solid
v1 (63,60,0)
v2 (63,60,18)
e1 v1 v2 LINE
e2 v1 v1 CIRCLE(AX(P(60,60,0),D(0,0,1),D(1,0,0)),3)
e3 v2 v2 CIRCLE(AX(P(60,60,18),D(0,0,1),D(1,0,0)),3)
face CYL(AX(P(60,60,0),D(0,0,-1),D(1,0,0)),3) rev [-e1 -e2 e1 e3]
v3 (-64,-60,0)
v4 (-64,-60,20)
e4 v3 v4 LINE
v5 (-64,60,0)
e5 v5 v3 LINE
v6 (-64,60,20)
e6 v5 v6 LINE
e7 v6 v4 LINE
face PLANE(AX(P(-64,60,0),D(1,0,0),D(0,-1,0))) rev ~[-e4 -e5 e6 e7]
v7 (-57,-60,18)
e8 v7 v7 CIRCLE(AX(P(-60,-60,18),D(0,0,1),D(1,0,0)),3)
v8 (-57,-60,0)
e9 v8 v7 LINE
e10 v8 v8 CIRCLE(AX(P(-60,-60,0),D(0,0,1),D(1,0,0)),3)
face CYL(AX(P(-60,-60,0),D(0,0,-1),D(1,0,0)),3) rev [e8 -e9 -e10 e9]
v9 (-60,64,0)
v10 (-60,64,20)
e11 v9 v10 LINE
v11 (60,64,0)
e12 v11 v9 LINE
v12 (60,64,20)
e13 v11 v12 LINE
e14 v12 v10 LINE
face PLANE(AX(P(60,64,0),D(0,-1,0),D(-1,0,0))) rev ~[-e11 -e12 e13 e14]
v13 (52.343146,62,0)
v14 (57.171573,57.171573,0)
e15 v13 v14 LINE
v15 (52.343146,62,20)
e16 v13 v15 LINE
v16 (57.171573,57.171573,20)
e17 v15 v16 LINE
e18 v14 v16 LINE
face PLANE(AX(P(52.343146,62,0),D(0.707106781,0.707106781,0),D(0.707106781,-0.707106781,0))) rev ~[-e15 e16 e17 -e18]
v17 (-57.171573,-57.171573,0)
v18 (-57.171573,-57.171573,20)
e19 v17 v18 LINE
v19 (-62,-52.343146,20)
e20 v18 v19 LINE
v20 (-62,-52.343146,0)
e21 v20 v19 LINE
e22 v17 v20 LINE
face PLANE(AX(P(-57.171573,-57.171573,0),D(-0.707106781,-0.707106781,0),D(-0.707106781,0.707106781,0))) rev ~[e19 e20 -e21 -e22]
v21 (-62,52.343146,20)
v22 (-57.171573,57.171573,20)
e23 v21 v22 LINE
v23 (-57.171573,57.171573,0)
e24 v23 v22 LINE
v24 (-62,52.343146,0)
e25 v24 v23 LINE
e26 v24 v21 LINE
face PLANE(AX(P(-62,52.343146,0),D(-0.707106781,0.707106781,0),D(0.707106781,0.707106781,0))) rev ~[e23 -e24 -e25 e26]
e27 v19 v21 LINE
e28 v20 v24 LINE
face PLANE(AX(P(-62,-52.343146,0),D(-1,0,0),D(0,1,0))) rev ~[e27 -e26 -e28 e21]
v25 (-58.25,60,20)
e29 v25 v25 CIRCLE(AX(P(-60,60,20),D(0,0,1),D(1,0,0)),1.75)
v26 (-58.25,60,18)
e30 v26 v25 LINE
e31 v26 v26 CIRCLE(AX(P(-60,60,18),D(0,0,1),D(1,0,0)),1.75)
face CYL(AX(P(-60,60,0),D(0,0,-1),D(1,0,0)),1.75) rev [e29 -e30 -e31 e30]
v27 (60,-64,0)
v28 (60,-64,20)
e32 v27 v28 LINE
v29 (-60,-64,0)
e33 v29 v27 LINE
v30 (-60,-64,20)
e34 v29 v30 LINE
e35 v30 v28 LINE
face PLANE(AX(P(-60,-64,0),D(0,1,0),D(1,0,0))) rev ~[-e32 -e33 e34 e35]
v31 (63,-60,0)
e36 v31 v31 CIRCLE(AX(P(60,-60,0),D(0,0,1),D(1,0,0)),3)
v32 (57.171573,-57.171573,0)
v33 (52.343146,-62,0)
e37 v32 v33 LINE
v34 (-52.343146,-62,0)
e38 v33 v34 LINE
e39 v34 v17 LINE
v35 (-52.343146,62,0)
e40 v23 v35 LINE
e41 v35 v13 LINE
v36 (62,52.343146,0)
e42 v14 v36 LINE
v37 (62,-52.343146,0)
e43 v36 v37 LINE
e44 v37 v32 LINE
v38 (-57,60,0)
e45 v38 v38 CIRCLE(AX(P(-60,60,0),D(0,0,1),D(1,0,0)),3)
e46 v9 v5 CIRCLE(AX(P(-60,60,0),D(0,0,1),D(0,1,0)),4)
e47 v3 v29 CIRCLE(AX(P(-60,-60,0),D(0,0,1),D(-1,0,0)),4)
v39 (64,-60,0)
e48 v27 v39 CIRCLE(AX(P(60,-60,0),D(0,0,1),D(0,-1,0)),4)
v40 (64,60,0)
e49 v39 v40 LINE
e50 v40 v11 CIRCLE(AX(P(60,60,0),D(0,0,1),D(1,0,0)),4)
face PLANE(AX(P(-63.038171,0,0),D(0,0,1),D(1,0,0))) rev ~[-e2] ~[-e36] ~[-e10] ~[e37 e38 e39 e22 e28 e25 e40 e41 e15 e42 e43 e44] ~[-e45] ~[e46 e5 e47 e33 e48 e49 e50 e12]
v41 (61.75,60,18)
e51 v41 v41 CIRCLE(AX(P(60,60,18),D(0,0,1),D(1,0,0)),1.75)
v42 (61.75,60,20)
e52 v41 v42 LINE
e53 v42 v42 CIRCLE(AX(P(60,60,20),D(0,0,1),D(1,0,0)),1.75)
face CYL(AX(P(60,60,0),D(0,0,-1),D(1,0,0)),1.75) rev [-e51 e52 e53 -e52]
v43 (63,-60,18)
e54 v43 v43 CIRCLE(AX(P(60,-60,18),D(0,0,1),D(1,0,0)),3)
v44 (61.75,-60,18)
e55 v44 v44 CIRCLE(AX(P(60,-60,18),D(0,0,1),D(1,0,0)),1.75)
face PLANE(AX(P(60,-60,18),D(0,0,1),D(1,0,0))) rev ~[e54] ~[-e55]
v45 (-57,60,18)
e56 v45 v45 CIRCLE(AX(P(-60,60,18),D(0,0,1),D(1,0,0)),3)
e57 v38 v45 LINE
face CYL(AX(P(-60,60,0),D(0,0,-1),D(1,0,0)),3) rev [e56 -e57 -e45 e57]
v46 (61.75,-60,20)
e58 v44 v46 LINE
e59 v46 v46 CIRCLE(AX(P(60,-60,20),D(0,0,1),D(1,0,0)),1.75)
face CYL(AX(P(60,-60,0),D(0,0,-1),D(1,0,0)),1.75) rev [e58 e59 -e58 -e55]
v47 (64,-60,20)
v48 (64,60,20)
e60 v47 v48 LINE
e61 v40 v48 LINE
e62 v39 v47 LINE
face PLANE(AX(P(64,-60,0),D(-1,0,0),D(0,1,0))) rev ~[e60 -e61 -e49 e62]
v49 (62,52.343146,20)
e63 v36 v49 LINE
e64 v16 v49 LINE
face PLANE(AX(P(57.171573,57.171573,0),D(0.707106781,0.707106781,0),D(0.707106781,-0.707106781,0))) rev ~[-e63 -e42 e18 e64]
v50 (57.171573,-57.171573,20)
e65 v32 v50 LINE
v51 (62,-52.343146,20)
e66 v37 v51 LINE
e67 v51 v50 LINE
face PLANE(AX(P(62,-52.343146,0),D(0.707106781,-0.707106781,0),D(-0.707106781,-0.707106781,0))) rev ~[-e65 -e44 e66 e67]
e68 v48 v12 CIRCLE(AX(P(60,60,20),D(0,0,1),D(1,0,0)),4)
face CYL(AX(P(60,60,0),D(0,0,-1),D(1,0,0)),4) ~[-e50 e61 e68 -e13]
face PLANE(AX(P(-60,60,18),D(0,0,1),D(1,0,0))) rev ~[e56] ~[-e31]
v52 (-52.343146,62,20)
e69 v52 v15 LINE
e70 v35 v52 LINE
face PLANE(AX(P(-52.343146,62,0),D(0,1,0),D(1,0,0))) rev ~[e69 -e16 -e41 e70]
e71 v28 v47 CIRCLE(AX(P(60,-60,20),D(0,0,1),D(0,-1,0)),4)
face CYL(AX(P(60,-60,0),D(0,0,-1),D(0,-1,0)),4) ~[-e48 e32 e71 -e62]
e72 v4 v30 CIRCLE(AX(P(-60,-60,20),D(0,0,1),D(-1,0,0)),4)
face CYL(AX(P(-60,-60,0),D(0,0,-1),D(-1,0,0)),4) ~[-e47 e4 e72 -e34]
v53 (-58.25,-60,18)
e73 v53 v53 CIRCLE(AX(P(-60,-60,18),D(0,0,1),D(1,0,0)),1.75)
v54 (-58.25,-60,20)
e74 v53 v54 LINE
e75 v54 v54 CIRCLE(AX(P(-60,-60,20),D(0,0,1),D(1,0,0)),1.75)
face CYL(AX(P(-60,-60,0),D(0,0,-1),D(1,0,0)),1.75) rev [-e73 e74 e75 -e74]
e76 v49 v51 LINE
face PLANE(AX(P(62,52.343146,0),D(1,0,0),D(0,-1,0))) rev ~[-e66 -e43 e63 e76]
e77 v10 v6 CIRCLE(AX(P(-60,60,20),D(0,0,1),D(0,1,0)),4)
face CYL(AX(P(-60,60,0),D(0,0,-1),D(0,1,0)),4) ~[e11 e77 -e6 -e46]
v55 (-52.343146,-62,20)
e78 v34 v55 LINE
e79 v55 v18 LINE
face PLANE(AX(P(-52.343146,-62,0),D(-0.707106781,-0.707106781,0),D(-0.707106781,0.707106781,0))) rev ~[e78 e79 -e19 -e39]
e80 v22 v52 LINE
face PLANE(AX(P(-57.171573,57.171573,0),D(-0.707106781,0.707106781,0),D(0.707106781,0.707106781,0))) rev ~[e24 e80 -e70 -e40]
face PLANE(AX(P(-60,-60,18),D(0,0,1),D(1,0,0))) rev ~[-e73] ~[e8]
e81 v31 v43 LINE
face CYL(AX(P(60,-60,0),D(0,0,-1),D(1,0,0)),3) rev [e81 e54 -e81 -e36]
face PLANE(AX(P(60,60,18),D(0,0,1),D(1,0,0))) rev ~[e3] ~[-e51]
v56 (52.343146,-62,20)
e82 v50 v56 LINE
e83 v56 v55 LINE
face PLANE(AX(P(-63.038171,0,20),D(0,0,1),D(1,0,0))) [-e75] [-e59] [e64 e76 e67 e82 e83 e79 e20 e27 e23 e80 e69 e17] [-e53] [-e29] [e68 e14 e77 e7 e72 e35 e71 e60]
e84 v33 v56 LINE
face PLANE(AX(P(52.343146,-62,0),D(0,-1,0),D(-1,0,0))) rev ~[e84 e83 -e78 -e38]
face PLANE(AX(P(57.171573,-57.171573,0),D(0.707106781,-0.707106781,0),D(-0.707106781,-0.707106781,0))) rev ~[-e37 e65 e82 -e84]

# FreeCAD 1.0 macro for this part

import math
import FreeCAD as App
import Part
import Sketcher
from FreeCAD import Vector
Q = App.Units.Quantity

doc = App.newDocument("Part")
body = doc.addObject("PartDesign::Body", "Body")

sketch1 = body.newObject("Sketcher::SketchObject", "Sketch")
sketch1.AttachmentSupport = (doc.getObject("XY_Plane"), [""])
sketch1.MapMode = "FlatFace"
sketch1.addGeometry(Part.LineSegment(Vector(60, 64, 0), Vector(-60, 64, 0)), False)
sketch1.addGeometry(Part.ArcOfCircle(Part.Circle(Vector(-60, 60, 0), Vector(0, 0, 1), 4), math.radians(90), math.radians(180)), False)
sketch1.addGeometry(Part.LineSegment(Vector(-64, 60, 0), Vector(-64, -60, 0)), False)
sketch1.addGeometry(Part.ArcOfCircle(Part.Circle(Vector(-60, -60, 0), Vector(0, 0, 1), 4), math.radians(180), math.radians(270)), False)
sketch1.addGeometry(Part.LineSegment(Vector(-60, -64, 0), Vector(60, -64, 0)), False)
sketch1.addGeometry(Part.ArcOfCircle(Part.Circle(Vector(60, -60, 0), Vector(0, 0, 1), 4), math.radians(-90), math.radians(0)), False)
sketch1.addGeometry(Part.LineSegment(Vector(64, -60, 0), Vector(64, 60, 0)), False)
sketch1.addGeometry(Part.ArcOfCircle(Part.Circle(Vector(60, 60, 0), Vector(0, 0, 1), 4), math.radians(0), math.radians(90)), False)
sketch1.addGeometry(Part.Circle(Vector(-60, -60, 0), Vector(0, 0, 1), 1.8), False)
sketch1.addGeometry(Part.Circle(Vector(60, -60, 0), Vector(0, 0, 1), 1.8), False)
sketch1.addGeometry(Part.Circle(Vector(-60, 60, 0), Vector(0, 0, 1), 1.8), False)
sketch1.addGeometry(Part.LineSegment(Vector(-62, -52.3, 0), Vector(-62, 52.3, 0)), False)
sketch1.addGeometry(Part.LineSegment(Vector(-62, 52.3, 0), Vector(-57.2, 57.2, 0)), False)
sketch1.addGeometry(Part.LineSegment(Vector(-57.2, 57.2, 0), Vector(-52.3, 62, 0)), False)
sketch1.addGeometry(Part.LineSegment(Vector(-52.3, 62, 0), Vector(52.3, 62, 0)), False)
sketch1.addGeometry(Part.LineSegment(Vector(52.3, 62, 0), Vector(57.2, 57.2, 0)), False)
sketch1.addGeometry(Part.LineSegment(Vector(57.2, 57.2, 0), Vector(62, 52.3, 0)), False)
sketch1.addGeometry(Part.LineSegment(Vector(62, 52.3, 0), Vector(62, -52.3, 0)), False)
sketch1.addGeometry(Part.LineSegment(Vector(62, -52.3, 0), Vector(57.2, -57.2, 0)), False)
sketch1.addGeometry(Part.LineSegment(Vector(57.2, -57.2, 0), Vector(52.3, -62, 0)), False)
sketch1.addGeometry(Part.LineSegment(Vector(52.3, -62, 0), Vector(-52.3, -62, 0)), False)
sketch1.addGeometry(Part.LineSegment(Vector(-52.3, -62, 0), Vector(-57.2, -57.2, 0)), False)
sketch1.addGeometry(Part.LineSegment(Vector(-57.2, -57.2, 0), Vector(-62, -52.3, 0)), False)
sketch1.addGeometry(Part.Circle(Vector(60, 60, 0), Vector(0, 0, 1), 1.8), False)
sketch1.addConstraint(Sketcher.Constraint("Tangent", 0, 2, 1, 1))
sketch1.addConstraint(Sketcher.Constraint("Tangent", 1, 2, 2, 1))
sketch1.addConstraint(Sketcher.Constraint("Tangent", 2, 2, 3, 1))
sketch1.addConstraint(Sketcher.Constraint("Tangent", 3, 2, 4, 1))
sketch1.addConstraint(Sketcher.Constraint("Tangent", 4, 2, 5, 1))
sketch1.addConstraint(Sketcher.Constraint("Tangent", 5, 2, 6, 1))
sketch1.addConstraint(Sketcher.Constraint("Tangent", 6, 2, 7, 1))
sketch1.addConstraint(Sketcher.Constraint("Tangent", 7, 2, 0, 1))
sketch1.addConstraint(Sketcher.Constraint("Coincident", 11, 2, 12, 1))
sketch1.addConstraint(Sketcher.Constraint("Coincident", 12, 2, 13, 1))
sketch1.addConstraint(Sketcher.Constraint("Coincident", 13, 2, 14, 1))
sketch1.addConstraint(Sketcher.Constraint("Coincident", 14, 2, 15, 1))
sketch1.addConstraint(Sketcher.Constraint("Coincident", 15, 2, 16, 1))
sketch1.addConstraint(Sketcher.Constraint("Coincident", 16, 2, 17, 1))
sketch1.addConstraint(Sketcher.Constraint("Coincident", 17, 2, 18, 1))
sketch1.addConstraint(Sketcher.Constraint("Coincident", 18, 2, 19, 1))
sketch1.addConstraint(Sketcher.Constraint("Coincident", 19, 2, 20, 1))
sketch1.addConstraint(Sketcher.Constraint("Coincident", 20, 2, 21, 1))
sketch1.addConstraint(Sketcher.Constraint("Coincident", 21, 2, 22, 1))
sketch1.addConstraint(Sketcher.Constraint("Coincident", 22, 2, 11, 1))
sketch1.addConstraint(Sketcher.Constraint("Horizontal", 0))
sketch1.addConstraint(Sketcher.Constraint("Vertical", 2))
sketch1.addConstraint(Sketcher.Constraint("Horizontal", 4))
sketch1.addConstraint(Sketcher.Constraint("Vertical", 6))
sketch1.addConstraint(Sketcher.Constraint("Vertical", 11))
sketch1.addConstraint(Sketcher.Constraint("Horizontal", 14))
sketch1.addConstraint(Sketcher.Constraint("Vertical", 17))
sketch1.addConstraint(Sketcher.Constraint("Horizontal", 20))
sketch1.addConstraint(Sketcher.Constraint("Coincident", 8, 3, 3, 3))
sketch1.addConstraint(Sketcher.Constraint("Coincident", 9, 3, 5, 3))
sketch1.addConstraint(Sketcher.Constraint("Coincident", 10, 3, 1, 3))
sketch1.addConstraint(Sketcher.Constraint("Coincident", 23, 3, 7, 3))
sketch1.addConstraint(Sketcher.Constraint("Equal", 1, 3))
sketch1.addConstraint(Sketcher.Constraint("Equal", 3, 5))
sketch1.addConstraint(Sketcher.Constraint("Equal", 5, 7))
sketch1.addConstraint(Sketcher.Constraint("Equal", 8, 9))
sketch1.addConstraint(Sketcher.Constraint("Equal", 9, 10))
sketch1.addConstraint(Sketcher.Constraint("Equal", 10, 23))
sketch1.addConstraint(Sketcher.Constraint("Symmetric", 1, 3, 5, 3, -1, 1))
sketch1.addConstraint(Sketcher.Constraint("Symmetric", 11, 2, 17, 2, -1, 1))
sketch1.addConstraint(Sketcher.Constraint("Symmetric", 12, 2, 18, 2, -1, 1))
sketch1.addConstraint(Sketcher.Constraint("Symmetric", 13, 2, 19, 2, -1, 1))
sketch1.addConstraint(Sketcher.Constraint("Symmetric", 15, 2, 21, 2, -1, 1))
sketch1.addConstraint(Sketcher.Constraint("Symmetric", 12, 2, 15, 2, -2))
sketch1.addConstraint(Sketcher.Constraint("Parallel", 12, 13))
sketch1.addConstraint(Sketcher.Constraint("Perpendicular", 13, 15))
sketch1.addConstraint(Sketcher.Constraint("Parallel", 15, 16))
sketch1.addConstraint(Sketcher.Constraint("Perpendicular", 19, 21))
sketch1.addConstraint(Sketcher.Constraint("Parallel", 21, 22))
sketch1.addConstraint(Sketcher.Constraint("Horizontal", 11, 2, 16, 2))
sketch1.addConstraint(Sketcher.Constraint("Equal", 4, 2))
sketch1.addConstraint(Sketcher.Constraint("Equal", 20, 11))
sketch1.addConstraint(Sketcher.Constraint("Equal", 12, 13))
sketch1.addConstraint(Sketcher.Constraint("Radius", 1, Q("4 mm")))
sketch1.addConstraint(Sketcher.Constraint("Diameter", 8, Q("3.5 mm")))
sketch1.addConstraint(Sketcher.Constraint("DistanceX", 0, 2, 0, 1, Q("120 mm")))
sketch1.addConstraint(Sketcher.Constraint("DistanceX", 11, 2, -1, 1, Q("62 mm")))
sketch1.addConstraint(Sketcher.Constraint("DistanceX", 14, 1, 14, 2, Q("104.686291 mm")))
pad1 = body.newObject("PartDesign::Pad", "Pad")
pad1.Profile = sketch1
pad1.Length = 20

sketch2 = body.newObject("Sketcher::SketchObject", "Sketch001")
sketch2.AttachmentSupport = (doc.getObject("XY_Plane"), [""])
sketch2.MapMode = "FlatFace"
sketch2.addGeometry(Part.Circle(Vector(60, -60, 0), Vector(0, 0, 1), 3), False)
sketch2.addGeometry(Part.Circle(Vector(60, -60, 0), Vector(0, 0, 1), 1.8), False)
sketch2.addGeometry(Part.Circle(Vector(-60, -60, 0), Vector(0, 0, 1), 3), False)
sketch2.addGeometry(Part.Circle(Vector(-60, -60, 0), Vector(0, 0, 1), 1.8), False)
sketch2.addGeometry(Part.Circle(Vector(-60, 60, 0), Vector(0, 0, 1), 3), False)
sketch2.addGeometry(Part.Circle(Vector(-60, 60, 0), Vector(0, 0, 1), 1.8), False)
sketch2.addGeometry(Part.Circle(Vector(60, 60, 0), Vector(0, 0, 1), 3), False)
sketch2.addGeometry(Part.Circle(Vector(60, 60, 0), Vector(0, 0, 1), 1.8), False)
sketch2.addConstraint(Sketcher.Constraint("Coincident", 1, 3, 0, 3))
sketch2.addConstraint(Sketcher.Constraint("Coincident", 3, 3, 2, 3))
sketch2.addConstraint(Sketcher.Constraint("Coincident", 5, 3, 4, 3))
sketch2.addConstraint(Sketcher.Constraint("Coincident", 7, 3, 6, 3))
sketch2.addConstraint(Sketcher.Constraint("Equal", 0, 2))
sketch2.addConstraint(Sketcher.Constraint("Equal", 1, 3))
sketch2.addConstraint(Sketcher.Constraint("Equal", 2, 4))
sketch2.addConstraint(Sketcher.Constraint("Equal", 3, 5))
sketch2.addConstraint(Sketcher.Constraint("Equal", 4, 6))
sketch2.addConstraint(Sketcher.Constraint("Equal", 5, 7))
sketch2.addConstraint(Sketcher.Constraint("Symmetric", 0, 3, 4, 3, -1, 1))
sketch2.addConstraint(Sketcher.Constraint("Symmetric", 2, 3, 6, 3, -1, 1))
sketch2.addConstraint(Sketcher.Constraint("Symmetric", 0, 3, 2, 3, -2))
sketch2.addConstraint(Sketcher.Constraint("Diameter", 0, Q("6 mm")))
sketch2.addConstraint(Sketcher.Constraint("Diameter", 1, Q("3.5 mm")))
sketch2.addConstraint(Sketcher.Constraint("DistanceX", -1, 1, 0, 3, Q("60 mm")))
sketch2.addConstraint(Sketcher.Constraint("DistanceY", 0, 3, -1, 1, Q("60 mm")))
pocket1 = body.newObject("PartDesign::Pocket", "Pocket")
pocket1.Profile = sketch2
pocket1.Length = 18
pocket1.Reversed = True

doc.recompute()
